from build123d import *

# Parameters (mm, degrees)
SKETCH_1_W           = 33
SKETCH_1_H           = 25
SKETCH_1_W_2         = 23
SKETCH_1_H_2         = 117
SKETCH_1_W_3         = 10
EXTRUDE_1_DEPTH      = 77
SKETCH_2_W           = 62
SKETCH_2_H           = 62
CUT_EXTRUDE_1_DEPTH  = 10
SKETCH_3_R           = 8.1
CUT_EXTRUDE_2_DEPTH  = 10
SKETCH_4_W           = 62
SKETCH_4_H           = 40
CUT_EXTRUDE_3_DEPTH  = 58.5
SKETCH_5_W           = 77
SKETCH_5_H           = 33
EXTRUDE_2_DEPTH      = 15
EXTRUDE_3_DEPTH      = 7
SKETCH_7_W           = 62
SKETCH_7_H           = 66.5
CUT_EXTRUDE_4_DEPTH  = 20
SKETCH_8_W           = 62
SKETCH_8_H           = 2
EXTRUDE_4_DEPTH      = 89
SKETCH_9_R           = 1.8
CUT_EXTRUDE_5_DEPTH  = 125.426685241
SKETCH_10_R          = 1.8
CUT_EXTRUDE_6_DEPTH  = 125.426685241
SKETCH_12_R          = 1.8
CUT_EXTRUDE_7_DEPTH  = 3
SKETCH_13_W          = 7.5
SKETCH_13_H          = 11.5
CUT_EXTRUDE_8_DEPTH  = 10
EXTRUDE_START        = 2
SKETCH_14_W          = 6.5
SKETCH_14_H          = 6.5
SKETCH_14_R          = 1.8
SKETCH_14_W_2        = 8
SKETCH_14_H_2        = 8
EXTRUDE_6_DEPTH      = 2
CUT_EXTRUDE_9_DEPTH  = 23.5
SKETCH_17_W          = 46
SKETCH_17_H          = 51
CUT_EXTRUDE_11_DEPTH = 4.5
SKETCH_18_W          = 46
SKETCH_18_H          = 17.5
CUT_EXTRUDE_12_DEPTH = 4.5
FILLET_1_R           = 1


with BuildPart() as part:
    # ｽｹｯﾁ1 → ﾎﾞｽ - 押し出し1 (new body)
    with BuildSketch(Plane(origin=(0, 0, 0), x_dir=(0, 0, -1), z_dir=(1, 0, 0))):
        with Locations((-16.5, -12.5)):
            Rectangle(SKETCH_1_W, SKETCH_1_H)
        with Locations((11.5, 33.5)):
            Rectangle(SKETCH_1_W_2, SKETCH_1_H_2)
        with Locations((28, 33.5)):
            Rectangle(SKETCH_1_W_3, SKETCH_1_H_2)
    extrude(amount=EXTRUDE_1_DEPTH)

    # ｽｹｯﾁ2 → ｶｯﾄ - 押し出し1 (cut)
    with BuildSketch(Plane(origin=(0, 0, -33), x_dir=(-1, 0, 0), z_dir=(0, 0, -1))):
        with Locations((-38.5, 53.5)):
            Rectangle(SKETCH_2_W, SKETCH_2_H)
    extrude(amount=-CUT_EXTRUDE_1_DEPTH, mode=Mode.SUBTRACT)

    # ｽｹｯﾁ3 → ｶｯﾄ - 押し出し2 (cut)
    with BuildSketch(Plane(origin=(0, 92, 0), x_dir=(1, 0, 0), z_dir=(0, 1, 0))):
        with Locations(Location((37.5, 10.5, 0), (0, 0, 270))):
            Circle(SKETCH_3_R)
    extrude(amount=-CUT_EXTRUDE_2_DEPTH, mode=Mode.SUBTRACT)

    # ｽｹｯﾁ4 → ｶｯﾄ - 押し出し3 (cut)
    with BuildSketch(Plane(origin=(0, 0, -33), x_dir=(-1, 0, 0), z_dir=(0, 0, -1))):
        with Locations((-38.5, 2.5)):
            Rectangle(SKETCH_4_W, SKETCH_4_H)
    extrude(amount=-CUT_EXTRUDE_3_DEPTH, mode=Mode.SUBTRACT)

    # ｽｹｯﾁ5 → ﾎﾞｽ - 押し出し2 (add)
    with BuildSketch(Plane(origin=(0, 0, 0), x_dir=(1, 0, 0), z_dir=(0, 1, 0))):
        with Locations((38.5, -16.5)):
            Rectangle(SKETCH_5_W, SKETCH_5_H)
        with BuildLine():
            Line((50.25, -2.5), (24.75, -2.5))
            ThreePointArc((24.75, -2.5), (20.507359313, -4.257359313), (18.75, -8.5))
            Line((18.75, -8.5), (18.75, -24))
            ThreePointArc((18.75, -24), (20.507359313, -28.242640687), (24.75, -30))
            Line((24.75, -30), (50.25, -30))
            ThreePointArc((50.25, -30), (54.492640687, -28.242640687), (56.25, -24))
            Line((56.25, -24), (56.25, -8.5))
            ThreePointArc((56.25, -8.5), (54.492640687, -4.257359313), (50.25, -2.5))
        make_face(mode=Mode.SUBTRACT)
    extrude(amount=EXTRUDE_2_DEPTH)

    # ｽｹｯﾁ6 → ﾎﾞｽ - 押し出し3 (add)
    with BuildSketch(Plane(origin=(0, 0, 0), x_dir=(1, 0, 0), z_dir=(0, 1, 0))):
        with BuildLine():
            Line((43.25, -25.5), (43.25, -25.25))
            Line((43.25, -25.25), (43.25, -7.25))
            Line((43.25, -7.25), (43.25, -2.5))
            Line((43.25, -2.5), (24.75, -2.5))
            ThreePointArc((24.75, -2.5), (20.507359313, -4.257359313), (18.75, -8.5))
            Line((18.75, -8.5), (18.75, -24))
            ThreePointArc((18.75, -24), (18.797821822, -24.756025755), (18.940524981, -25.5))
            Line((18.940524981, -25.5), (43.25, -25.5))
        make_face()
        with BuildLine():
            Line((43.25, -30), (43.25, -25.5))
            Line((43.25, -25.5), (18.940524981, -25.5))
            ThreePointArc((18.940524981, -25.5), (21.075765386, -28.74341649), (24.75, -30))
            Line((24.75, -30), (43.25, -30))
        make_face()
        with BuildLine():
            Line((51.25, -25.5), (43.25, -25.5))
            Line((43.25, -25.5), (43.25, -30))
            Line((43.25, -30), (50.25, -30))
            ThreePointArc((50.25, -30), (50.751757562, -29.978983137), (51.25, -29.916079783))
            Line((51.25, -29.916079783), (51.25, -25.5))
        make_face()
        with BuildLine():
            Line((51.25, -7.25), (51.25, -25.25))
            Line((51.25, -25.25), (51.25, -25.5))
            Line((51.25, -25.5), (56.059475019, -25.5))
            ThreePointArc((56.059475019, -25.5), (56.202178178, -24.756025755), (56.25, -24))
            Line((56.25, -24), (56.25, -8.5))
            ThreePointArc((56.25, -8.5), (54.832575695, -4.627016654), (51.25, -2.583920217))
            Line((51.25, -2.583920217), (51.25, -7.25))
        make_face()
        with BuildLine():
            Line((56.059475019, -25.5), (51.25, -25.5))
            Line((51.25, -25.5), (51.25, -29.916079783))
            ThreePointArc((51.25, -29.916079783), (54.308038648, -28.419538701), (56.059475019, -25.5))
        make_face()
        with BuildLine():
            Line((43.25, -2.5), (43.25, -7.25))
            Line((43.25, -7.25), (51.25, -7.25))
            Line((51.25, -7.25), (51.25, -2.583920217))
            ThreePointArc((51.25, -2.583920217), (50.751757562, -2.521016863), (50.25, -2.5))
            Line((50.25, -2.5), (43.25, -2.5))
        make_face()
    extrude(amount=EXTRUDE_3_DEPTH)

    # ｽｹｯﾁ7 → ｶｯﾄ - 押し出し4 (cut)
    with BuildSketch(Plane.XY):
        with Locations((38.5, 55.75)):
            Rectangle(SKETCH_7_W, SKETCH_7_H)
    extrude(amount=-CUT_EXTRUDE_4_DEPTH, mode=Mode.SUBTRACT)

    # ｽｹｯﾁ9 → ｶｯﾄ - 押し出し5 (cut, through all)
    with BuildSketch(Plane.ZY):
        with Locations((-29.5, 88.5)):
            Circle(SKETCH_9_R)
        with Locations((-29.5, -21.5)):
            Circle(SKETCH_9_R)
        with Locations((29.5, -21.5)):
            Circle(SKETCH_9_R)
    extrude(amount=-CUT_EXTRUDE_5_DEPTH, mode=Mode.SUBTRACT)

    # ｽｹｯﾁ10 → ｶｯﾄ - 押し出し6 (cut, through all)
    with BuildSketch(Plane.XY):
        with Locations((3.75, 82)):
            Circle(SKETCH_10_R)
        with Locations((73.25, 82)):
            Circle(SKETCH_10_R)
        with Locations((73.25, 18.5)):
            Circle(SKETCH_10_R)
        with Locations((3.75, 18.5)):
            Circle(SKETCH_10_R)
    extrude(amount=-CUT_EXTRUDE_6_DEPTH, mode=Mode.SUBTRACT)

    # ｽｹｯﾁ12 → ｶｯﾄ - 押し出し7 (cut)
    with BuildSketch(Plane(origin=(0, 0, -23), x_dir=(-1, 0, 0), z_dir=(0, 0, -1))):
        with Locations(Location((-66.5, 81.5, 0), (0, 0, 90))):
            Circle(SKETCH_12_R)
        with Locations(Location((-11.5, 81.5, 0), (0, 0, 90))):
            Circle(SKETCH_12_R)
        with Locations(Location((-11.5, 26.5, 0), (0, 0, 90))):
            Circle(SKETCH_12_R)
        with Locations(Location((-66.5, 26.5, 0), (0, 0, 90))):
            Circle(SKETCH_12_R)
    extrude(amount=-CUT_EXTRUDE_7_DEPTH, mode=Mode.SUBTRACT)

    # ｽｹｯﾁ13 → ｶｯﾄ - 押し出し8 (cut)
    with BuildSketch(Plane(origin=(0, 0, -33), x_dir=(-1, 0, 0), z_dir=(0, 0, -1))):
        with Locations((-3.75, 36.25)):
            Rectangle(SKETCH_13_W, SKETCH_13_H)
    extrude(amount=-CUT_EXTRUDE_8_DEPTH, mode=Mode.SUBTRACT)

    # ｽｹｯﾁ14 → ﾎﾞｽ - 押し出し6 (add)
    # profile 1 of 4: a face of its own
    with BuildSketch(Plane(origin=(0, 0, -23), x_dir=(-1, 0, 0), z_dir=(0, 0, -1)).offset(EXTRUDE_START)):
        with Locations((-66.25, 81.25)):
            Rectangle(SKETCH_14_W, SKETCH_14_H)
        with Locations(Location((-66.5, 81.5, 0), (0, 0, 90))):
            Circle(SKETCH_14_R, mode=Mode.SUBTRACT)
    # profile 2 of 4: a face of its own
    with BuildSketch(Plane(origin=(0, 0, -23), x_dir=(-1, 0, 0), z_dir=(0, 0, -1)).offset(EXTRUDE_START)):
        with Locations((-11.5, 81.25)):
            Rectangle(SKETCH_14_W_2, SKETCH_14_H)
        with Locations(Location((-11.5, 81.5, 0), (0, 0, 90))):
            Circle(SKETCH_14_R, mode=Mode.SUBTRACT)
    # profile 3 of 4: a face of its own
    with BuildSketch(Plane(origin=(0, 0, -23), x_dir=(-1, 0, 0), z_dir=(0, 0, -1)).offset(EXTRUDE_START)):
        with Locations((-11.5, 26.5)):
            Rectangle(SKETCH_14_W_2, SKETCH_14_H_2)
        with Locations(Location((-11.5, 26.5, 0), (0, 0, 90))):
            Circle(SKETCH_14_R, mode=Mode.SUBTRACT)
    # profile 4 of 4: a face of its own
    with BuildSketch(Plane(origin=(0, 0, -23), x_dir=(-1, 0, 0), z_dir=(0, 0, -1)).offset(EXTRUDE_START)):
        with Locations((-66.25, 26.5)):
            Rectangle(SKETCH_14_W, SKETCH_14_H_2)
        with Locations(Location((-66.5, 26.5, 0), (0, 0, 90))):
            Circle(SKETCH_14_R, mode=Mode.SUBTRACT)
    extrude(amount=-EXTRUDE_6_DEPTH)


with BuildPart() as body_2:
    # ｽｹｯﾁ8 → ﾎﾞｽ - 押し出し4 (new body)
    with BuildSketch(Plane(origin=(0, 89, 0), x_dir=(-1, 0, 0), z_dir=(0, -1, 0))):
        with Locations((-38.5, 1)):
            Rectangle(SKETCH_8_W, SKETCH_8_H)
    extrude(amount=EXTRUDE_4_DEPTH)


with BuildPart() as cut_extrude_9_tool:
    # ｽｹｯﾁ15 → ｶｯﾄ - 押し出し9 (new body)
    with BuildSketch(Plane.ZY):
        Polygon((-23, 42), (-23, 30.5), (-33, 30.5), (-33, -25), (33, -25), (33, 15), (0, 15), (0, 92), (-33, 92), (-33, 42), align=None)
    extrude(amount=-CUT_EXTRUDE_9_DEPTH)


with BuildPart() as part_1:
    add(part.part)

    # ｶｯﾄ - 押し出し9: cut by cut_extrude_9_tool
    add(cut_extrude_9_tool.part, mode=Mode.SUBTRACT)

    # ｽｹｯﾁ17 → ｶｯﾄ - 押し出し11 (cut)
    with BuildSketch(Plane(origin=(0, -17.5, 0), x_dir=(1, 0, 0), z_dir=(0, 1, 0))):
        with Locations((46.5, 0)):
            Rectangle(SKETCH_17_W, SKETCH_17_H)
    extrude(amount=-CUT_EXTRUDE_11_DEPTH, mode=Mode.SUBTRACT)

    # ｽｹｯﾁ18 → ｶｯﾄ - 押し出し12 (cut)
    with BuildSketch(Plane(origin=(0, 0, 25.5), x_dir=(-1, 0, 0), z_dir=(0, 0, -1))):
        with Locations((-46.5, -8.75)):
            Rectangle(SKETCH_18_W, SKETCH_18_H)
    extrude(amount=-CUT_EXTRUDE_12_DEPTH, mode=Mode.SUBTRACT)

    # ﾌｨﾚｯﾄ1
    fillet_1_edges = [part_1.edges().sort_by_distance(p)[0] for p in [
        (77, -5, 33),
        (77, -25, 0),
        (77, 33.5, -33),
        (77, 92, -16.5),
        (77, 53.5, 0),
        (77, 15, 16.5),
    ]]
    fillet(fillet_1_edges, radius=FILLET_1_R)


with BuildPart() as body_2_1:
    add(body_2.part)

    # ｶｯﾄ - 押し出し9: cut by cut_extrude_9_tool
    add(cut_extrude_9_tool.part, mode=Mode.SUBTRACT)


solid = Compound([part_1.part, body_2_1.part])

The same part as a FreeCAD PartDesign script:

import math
import FreeCAD as App
import Part
import Sketcher

V = App.Vector
Q = App.Units.Quantity


def edges_at(feature, points):
    """Names of the edges that pass closest to the given points."""
    edges = feature.Shape.Edges
    near = lambda p: min(range(len(edges)), key=lambda i: edges[i].distToShape(Part.Vertex(*p))[0])
    return sorted({f"Edge{near(p) + 1}" for p in points})

doc = App.newDocument("Part")
body = doc.addObject("PartDesign::Body", "Body")

# Sketch on YZ plane
sketch1 = body.newObject("Sketcher::SketchObject", "Sketch")
sketch1.AttachmentSupport = (doc.getObject("YZ_Plane"), [""])
sketch1.MapMode = "FlatFace"
sketch1.addGeometry(Part.LineSegment(V(0, 33, 0), V(-25, 33, 0)), False)
sketch1.addGeometry(Part.LineSegment(V(-25, 33, 0), V(-25, -33, 0)), False)
sketch1.addGeometry(Part.LineSegment(V(-25, -33, 0), V(92, -33, 0)), False)
sketch1.addGeometry(Part.LineSegment(V(92, -33, 0), V(92, 0, 0)), False)
sketch1.addGeometry(Part.LineSegment(V(92, 0, 0), V(0, 0, 0)), False)
sketch1.addGeometry(Part.LineSegment(V(0, 0, 0), V(0, 33, 0)), False)
sketch1.addConstraint(Sketcher.Constraint("Coincident", 0, 2, 1, 1))
sketch1.addConstraint(Sketcher.Constraint("Coincident", 1, 2, 2, 1))
sketch1.addConstraint(Sketcher.Constraint("Coincident", 2, 2, 3, 1))
sketch1.addConstraint(Sketcher.Constraint("Coincident", 3, 2, 4, 1))
sketch1.addConstraint(Sketcher.Constraint("Coincident", 4, 2, 5, 1))
sketch1.addConstraint(Sketcher.Constraint("Coincident", 5, 2, 0, 1))
sketch1.addConstraint(Sketcher.Constraint("Horizontal", 0))
sketch1.addConstraint(Sketcher.Constraint("Vertical", 1))
sketch1.addConstraint(Sketcher.Constraint("Horizontal", 2))
sketch1.addConstraint(Sketcher.Constraint("Vertical", 3))
sketch1.addConstraint(Sketcher.Constraint("Horizontal", 4))
sketch1.addConstraint(Sketcher.Constraint("Vertical", 5))
sketch1.addConstraint(Sketcher.Constraint("Coincident", 4, 2, -1, 1))
sketch1.addConstraint(Sketcher.Constraint("Equal", 3, 5))
sketch1.addConstraint(Sketcher.Constraint("DistanceX", 0, 2, 0, 1, Q("25 mm")))
sketch1.addConstraint(Sketcher.Constraint("DistanceX", 2, 1, 2, 2, Q("117 mm")))
sketch1.addConstraint(Sketcher.Constraint("DistanceY", 1, 2, 1, 1, Q("66 mm")))
pad1 = body.newObject("PartDesign::Pad", "Pad")
pad1.Profile = sketch1
pad1.Length = 77

# Sketch on XY plane
sketch2 = body.newObject("Sketcher::SketchObject", "Sketch001")
sketch2.AttachmentSupport = (doc.getObject("XY_Plane"), [""])
sketch2.MapMode = "FlatFace"
sketch2.AttachmentOffset = App.Placement(V(0, 0, -33), App.Rotation())
sketch2.addGeometry(Part.LineSegment(V(69.5, 84.5, 0), V(69.5, 22.5, 0)), False)
sketch2.addGeometry(Part.LineSegment(V(69.5, 22.5, 0), V(7.5, 22.5, 0)), False)
sketch2.addGeometry(Part.LineSegment(V(7.5, 22.5, 0), V(7.5, 84.5, 0)), False)
sketch2.addGeometry(Part.LineSegment(V(7.5, 84.5, 0), V(69.5, 84.5, 0)), False)
sketch2.addConstraint(Sketcher.Constraint("Coincident", 0, 2, 1, 1))
sketch2.addConstraint(Sketcher.Constraint("Coincident", 1, 2, 2, 1))
sketch2.addConstraint(Sketcher.Constraint("Coincident", 2, 2, 3, 1))
sketch2.addConstraint(Sketcher.Constraint("Coincident", 3, 2, 0, 1))
sketch2.addConstraint(Sketcher.Constraint("Vertical", 0))
sketch2.addConstraint(Sketcher.Constraint("Horizontal", 1))
sketch2.addConstraint(Sketcher.Constraint("Vertical", 2))
sketch2.addConstraint(Sketcher.Constraint("Horizontal", 3))
sketch2.addConstraint(Sketcher.Constraint("Equal", 3, 0))
sketch2.addConstraint(Sketcher.Constraint("DistanceX", 1, 2, 1, 1, Q("62 mm")))
sketch2.addConstraint(Sketcher.Constraint("DistanceX", -1, 1, 0, 2, Q("69.5 mm")))
sketch2.addConstraint(Sketcher.Constraint("DistanceY", -1, 1, 0, 2, Q("22.5 mm")))
pocket1 = body.newObject("PartDesign::Pocket", "Pocket")
pocket1.Profile = sketch2
pocket1.Length = 10
pocket1.Reversed = True

# Sketch on XZ plane
sketch3 = body.newObject("Sketcher::SketchObject", "Sketch002")
sketch3.AttachmentSupport = (doc.getObject("XZ_Plane"), [""])
sketch3.MapMode = "FlatFace"
sketch3.AttachmentOffset = App.Placement(V(0, 0, -92), App.Rotation())
sketch3.addGeometry(Part.Circle(V(37.5, -10.5, 0), V(0, 0, 1), 8.1), False)
sketch3.addConstraint(Sketcher.Constraint("Diameter", 0, Q("16.2 mm")))
sketch3.addConstraint(Sketcher.Constraint("DistanceX", -1, 1, 0, 3, Q("37.5 mm")))
sketch3.addConstraint(Sketcher.Constraint("DistanceY", 0, 3, -1, 1, Q("10.5 mm")))
pocket2 = body.newObject("PartDesign::Pocket", "Pocket001")
pocket2.Profile = sketch3
pocket2.Length = 10
pocket2.Reversed = True

# Sketch on XY plane
sketch4 = body.newObject("Sketcher::SketchObject", "Sketch003")
sketch4.AttachmentSupport = (doc.getObject("XY_Plane"), [""])
sketch4.MapMode = "FlatFace"
sketch4.AttachmentOffset = App.Placement(V(0, 0, -33), App.Rotation())
sketch4.addGeometry(Part.LineSegment(V(69.5, 22.5, 0), V(69.5, -17.5, 0)), False)
sketch4.addGeometry(Part.LineSegment(V(69.5, -17.5, 0), V(7.5, -17.5, 0)), False)
sketch4.addGeometry(Part.LineSegment(V(7.5, -17.5, 0), V(7.5, 22.5, 0)), False)
sketch4.addGeometry(Part.LineSegment(V(7.5, 22.5, 0), V(69.5, 22.5, 0)), False)
sketch4.addConstraint(Sketcher.Constraint("Coincident", 0, 2, 1, 1))
sketch4.addConstraint(Sketcher.Constraint("Coincident", 1, 2, 2, 1))
sketch4.addConstraint(Sketcher.Constraint("Coincident", 2, 2, 3, 1))
sketch4.addConstraint(Sketcher.Constraint("Coincident", 3, 2, 0, 1))
sketch4.addConstraint(Sketcher.Constraint("Vertical", 0))
sketch4.addConstraint(Sketcher.Constraint("Horizontal", 1))
sketch4.addConstraint(Sketcher.Constraint("Vertical", 2))
sketch4.addConstraint(Sketcher.Constraint("Horizontal", 3))
sketch4.addConstraint(Sketcher.Constraint("DistanceX", 1, 2, 1, 1, Q("62 mm")))
sketch4.addConstraint(Sketcher.Constraint("DistanceY", 0, 2, 0, 1, Q("40 mm")))
sketch4.addConstraint(Sketcher.Constraint("DistanceX", -1, 1, 0, 2, Q("69.5 mm")))
sketch4.addConstraint(Sketcher.Constraint("DistanceY", 0, 2, -1, 1, Q("17.5 mm")))
pocket3 = body.newObject("PartDesign::Pocket", "Pocket002")
pocket3.Profile = sketch4
pocket3.Length = 58.5
pocket3.Reversed = True

# Sketch on XZ plane
sketch5 = body.newObject("Sketcher::SketchObject", "Sketch004")
sketch5.AttachmentSupport = (doc.getObject("XZ_Plane"), [""])
sketch5.MapMode = "FlatFace"
sketch5.addGeometry(Part.LineSegment(V(0, 0, 0), V(0, 33, 0)), False)
sketch5.addGeometry(Part.LineSegment(V(0, 33, 0), V(77, 33, 0)), False)
sketch5.addGeometry(Part.LineSegment(V(77, 33, 0), V(77, 0, 0)), False)
sketch5.addGeometry(Part.LineSegment(V(77, 0, 0), V(0, 0, 0)), False)
sketch5.addGeometry(Part.LineSegment(V(24.75, 2.5, 0), V(50.25, 2.5, 0)), False)
sketch5.addGeometry(Part.ArcOfCircle(Part.Circle(V(50.25, 8.5, 0), V(0, 0, 1), 6), math.radians(-90), math.radians(0)), False)
sketch5.addGeometry(Part.LineSegment(V(56.25, 8.5, 0), V(56.25, 24, 0)), False)
sketch5.addGeometry(Part.ArcOfCircle(Part.Circle(V(50.25, 24, 0), V(0, 0, 1), 6), math.radians(0), math.radians(90)), False)
sketch5.addGeometry(Part.LineSegment(V(50.25, 30, 0), V(24.75, 30, 0)), False)
sketch5.addGeometry(Part.ArcOfCircle(Part.Circle(V(24.75, 24, 0), V(0, 0, 1), 6), math.radians(90), math.radians(180)), False)
sketch5.addGeometry(Part.LineSegment(V(18.75, 24, 0), V(18.75, 8.5, 0)), False)
sketch5.addGeometry(Part.ArcOfCircle(Part.Circle(V(24.75, 8.5, 0), V(0, 0, 1), 6), math.radians(180), math.radians(270)), False)
sketch5.addConstraint(Sketcher.Constraint("Coincident", 0, 2, 1, 1))
sketch5.addConstraint(Sketcher.Constraint("Coincident", 1, 2, 2, 1))
sketch5.addConstraint(Sketcher.Constraint("Coincident", 2, 2, 3, 1))
sketch5.addConstraint(Sketcher.Constraint("Coincident", 3, 2, 0, 1))
sketch5.addConstraint(Sketcher.Constraint("Tangent", 4, 2, 5, 1))
sketch5.addConstraint(Sketcher.Constraint("Tangent", 5, 2, 6, 1))
sketch5.addConstraint(Sketcher.Constraint("Tangent", 6, 2, 7, 1))
sketch5.addConstraint(Sketcher.Constraint("Tangent", 7, 2, 8, 1))
sketch5.addConstraint(Sketcher.Constraint("Tangent", 8, 2, 9, 1))
sketch5.addConstraint(Sketcher.Constraint("Tangent", 9, 2, 10, 1))
sketch5.addConstraint(Sketcher.Constraint("Tangent", 10, 2, 11, 1))
sketch5.addConstraint(Sketcher.Constraint("Tangent", 11, 2, 4, 1))
sketch5.addConstraint(Sketcher.Constraint("Vertical", 0))
sketch5.addConstraint(Sketcher.Constraint("Horizontal", 1))
sketch5.addConstraint(Sketcher.Constraint("Vertical", 2))
sketch5.addConstraint(Sketcher.Constraint("Horizontal", 3))
sketch5.addConstraint(Sketcher.Constraint("Horizontal", 4))
sketch5.addConstraint(Sketcher.Constraint("Vertical", 6))
sketch5.addConstraint(Sketcher.Constraint("Horizontal", 8))
sketch5.addConstraint(Sketcher.Constraint("Vertical", 10))
sketch5.addConstraint(Sketcher.Constraint("Coincident", 3, 2, -1, 1))
sketch5.addConstraint(Sketcher.Constraint("Equal", 5, 7))
sketch5.addConstraint(Sketcher.Constraint("Equal", 7, 9))
sketch5.addConstraint(Sketcher.Constraint("Equal", 9, 11))
sketch5.addConstraint(Sketcher.Constraint("Radius", 5, Q("6 mm")))
sketch5.addConstraint(Sketcher.Constraint("DistanceX", 1, 1, 1, 2, Q("77 mm")))
sketch5.addConstraint(Sketcher.Constraint("DistanceY", 0, 1, 0, 2, Q("33 mm")))
sketch5.addConstraint(Sketcher.Constraint("DistanceX", 4, 1, 4, 2, Q("25.5 mm")))
sketch5.addConstraint(Sketcher.Constraint("DistanceY", 6, 1, 6, 2, Q("15.5 mm")))
sketch5.addConstraint(Sketcher.Constraint("DistanceY", -1, 1, 7, 3, Q("24 mm")))
sketch5.addConstraint(Sketcher.Constraint("DistanceX", -1, 1, 5, 3, Q("50.25 mm")))
pad2 = body.newObject("PartDesign::Pad", "Pad001")
pad2.Profile = sketch5
pad2.Length = 15
pad2.Reversed = True

# Sketch on XZ plane
sketch6 = body.newObject("Sketcher::SketchObject", "Sketch005")
sketch6.AttachmentSupport = (doc.getObject("XZ_Plane"), [""])
sketch6.MapMode = "FlatFace"
sketch6.addGeometry(Part.ArcOfCircle(Part.Circle(V(24.75, 8.5, 0), V(0, 0, 1), 6), math.radians(180), math.radians(270)), False)
sketch6.addGeometry(Part.LineSegment(V(18.75, 8.5, 0), V(18.75, 24, 0)), False)
sketch6.addGeometry(Part.ArcOfCircle(Part.Circle(V(24.75, 24, 0), V(0, 0, 1), 6), math.radians(165.522488), math.radians(180)), False)
sketch6.addGeometry(Part.ArcOfCircle(Part.Circle(V(24.75, 24, 0), V(0, 0, 1), 6), math.radians(90), math.radians(165.522488)), False)
sketch6.addGeometry(Part.LineSegment(V(24.75, 30, 0), V(50.25, 30, 0)), False)
sketch6.addGeometry(Part.ArcOfCircle(Part.Circle(V(50.25, 24, 0), V(0, 0, 1), 6), math.radians(80.405932), math.radians(90)), False)
sketch6.addGeometry(Part.ArcOfCircle(Part.Circle(V(50.25, 24, 0), V(0, 0, 1), 6), math.radians(14.477512), math.radians(80.405932)), False)
sketch6.addGeometry(Part.ArcOfCircle(Part.Circle(V(50.25, 24, 0), V(0, 0, 1), 6), math.radians(0), math.radians(14.477512)), False)
sketch6.addGeometry(Part.LineSegment(V(56.25, 24, 0), V(56.25, 8.5, 0)), False)
sketch6.addGeometry(Part.ArcOfCircle(Part.Circle(V(50.25, 8.5, 0), V(0, 0, 1), 6), math.radians(-80.405932), math.radians(0)), False)
sketch6.addGeometry(Part.ArcOfCircle(Part.Circle(V(50.25, 8.5, 0), V(0, 0, 1), 6), math.radians(-90), math.radians(-80.405932)), False)
sketch6.addGeometry(Part.LineSegment(V(50.25, 2.5, 0), V(24.75, 2.5, 0)), False)
sketch6.addGeometry(Part.LineSegment(V(51.25, 7.25, 0), V(51.25, 25.5, 0)), False)
sketch6.addGeometry(Part.LineSegment(V(51.25, 25.5, 0), V(43.25, 25.5, 0)), False)
sketch6.addGeometry(Part.LineSegment(V(43.25, 25.5, 0), V(43.25, 7.25, 0)), False)
sketch6.addGeometry(Part.LineSegment(V(43.25, 7.25, 0), V(51.25, 7.25, 0)), False)
sketch6.addConstraint(Sketcher.Constraint("Tangent", 0, 1, 1, 1))
sketch6.addConstraint(Sketcher.Constraint("Tangent", 1, 2, 2, 2))
sketch6.addConstraint(Sketcher.Constraint("Tangent", 2, 1, 3, 2))
sketch6.addConstraint(Sketcher.Constraint("Tangent", 3, 1, 4, 1))
sketch6.addConstraint(Sketcher.Constraint("Tangent", 4, 2, 5, 2))
sketch6.addConstraint(Sketcher.Constraint("Tangent", 5, 1, 6, 2))
sketch6.addConstraint(Sketcher.Constraint("Tangent", 6, 1, 7, 2))
sketch6.addConstraint(Sketcher.Constraint("Tangent", 7, 1, 8, 1))
sketch6.addConstraint(Sketcher.Constraint("Tangent", 8, 2, 9, 2))
sketch6.addConstraint(Sketcher.Constraint("Tangent", 9, 1, 10, 2))
sketch6.addConstraint(Sketcher.Constraint("Tangent", 10, 1, 11, 1))
sketch6.addConstraint(Sketcher.Constraint("Tangent", 11, 2, 0, 2))
sketch6.addConstraint(Sketcher.Constraint("Coincident", 12, 2, 13, 1))
sketch6.addConstraint(Sketcher.Constraint("Coincident", 13, 2, 14, 1))
sketch6.addConstraint(Sketcher.Constraint("Coincident", 14, 2, 15, 1))
sketch6.addConstraint(Sketcher.Constraint("Coincident", 15, 2, 12, 1))
sketch6.addConstraint(Sketcher.Constraint("Vertical", 1))
sketch6.addConstraint(Sketcher.Constraint("Horizontal", 4))
sketch6.addConstraint(Sketcher.Constraint("Vertical", 8))
sketch6.addConstraint(Sketcher.Constraint("Horizontal", 11))
sketch6.addConstraint(Sketcher.Constraint("Vertical", 12))
sketch6.addConstraint(Sketcher.Constraint("Horizontal", 13))
sketch6.addConstraint(Sketcher.Constraint("Vertical", 14))
sketch6.addConstraint(Sketcher.Constraint("Horizontal", 15))
sketch6.addConstraint(Sketcher.Constraint("Coincident", 7, 3, 5, 3))
sketch6.addConstraint(Sketcher.Constraint("Equal", 0, 2))
sketch6.addConstraint(Sketcher.Constraint("Equal", 2, 3))
sketch6.addConstraint(Sketcher.Constraint("Equal", 3, 5))
sketch6.addConstraint(Sketcher.Constraint("Equal", 7, 9))
sketch6.addConstraint(Sketcher.Constraint("Equal", 9, 10))
sketch6.addConstraint(Sketcher.Constraint("Horizontal", 2, 1, 6, 1))
sketch6.addConstraint(Sketcher.Constraint("Horizontal", 6, 1, 12, 2))
sketch6.addConstraint(Sketcher.Constraint("Vertical", 5, 1, 9, 1))
sketch6.addConstraint(Sketcher.Constraint("Vertical", 9, 1, 12, 2))
sketch6.addConstraint(Sketcher.Constraint("Radius", 0, Q("6 mm")))
sketch6.addConstraint(Sketcher.Constraint("DistanceX", 13, 2, 13, 1, Q("8 mm")))
sketch6.addConstraint(Sketcher.Constraint("DistanceX", 4, 1, 4, 2, Q("25.5 mm")))
sketch6.addConstraint(Sketcher.Constraint("DistanceY", 1, 1, 1, 2, Q("15.5 mm")))
sketch6.addConstraint(Sketcher.Constraint("DistanceY", -1, 1, 2, 3, Q("24 mm")))
sketch6.addConstraint(Sketcher.Constraint("DistanceY", 0, 1, 2, 1, Q("17 mm")))
sketch6.addConstraint(Sketcher.Constraint("DistanceX", 4, 2, 5, 1, Q("1 mm")))
sketch6.addConstraint(Sketcher.Constraint("DistanceY", 12, 1, 12, 2, Q("18.25 mm")))
sketch6.addConstraint(Sketcher.Constraint("DistanceX", -1, 1, 0, 3, Q("24.75 mm")))
pad3 = body.newObject("PartDesign::Pad", "Pad002")
pad3.Profile = sketch6
pad3.Length = 7
pad3.Reversed = True

# Sketch on XY plane
sketch7 = body.newObject("Sketcher::SketchObject", "Sketch006")
sketch7.AttachmentSupport = (doc.getObject("XY_Plane"), [""])
sketch7.MapMode = "FlatFace"
sketch7.addGeometry(Part.LineSegment(V(7.5, 89, 0), V(7.5, 22.5, 0)), False)
sketch7.addGeometry(Part.LineSegment(V(7.5, 22.5, 0), V(69.5, 22.5, 0)), False)
sketch7.addGeometry(Part.LineSegment(V(69.5, 22.5, 0), V(69.5, 89, 0)), False)
sketch7.addGeometry(Part.LineSegment(V(69.5, 89, 0), V(7.5, 89, 0)), False)
sketch7.addConstraint(Sketcher.Constraint("Coincident", 0, 2, 1, 1))
sketch7.addConstraint(Sketcher.Constraint("Coincident", 1, 2, 2, 1))
sketch7.addConstraint(Sketcher.Constraint("Coincident", 2, 2, 3, 1))
sketch7.addConstraint(Sketcher.Constraint("Coincident", 3, 2, 0, 1))
sketch7.addConstraint(Sketcher.Constraint("Vertical", 0))
sketch7.addConstraint(Sketcher.Constraint("Horizontal", 1))
sketch7.addConstraint(Sketcher.Constraint("Vertical", 2))
sketch7.addConstraint(Sketcher.Constraint("Horizontal", 3))
sketch7.addConstraint(Sketcher.Constraint("DistanceX", 1, 1, 1, 2, Q("62 mm")))
sketch7.addConstraint(Sketcher.Constraint("DistanceY", 0, 2, 0, 1, Q("66.5 mm")))
sketch7.addConstraint(Sketcher.Constraint("DistanceY", -1, 1, 2, 2, Q("89 mm")))
sketch7.addConstraint(Sketcher.Constraint("DistanceX", -1, 1, 0, 2, Q("7.5 mm")))
pocket4 = body.newObject("PartDesign::Pocket", "Pocket003")
pocket4.Profile = sketch7
pocket4.Length = 20

# Sketch on YZ plane
sketch8 = body.newObject("Sketcher::SketchObject", "Sketch007")
sketch8.AttachmentSupport = (doc.getObject("YZ_Plane"), [""])
sketch8.MapMode = "FlatFace"
sketch8.addGeometry(Part.Circle(V(88.5, -29.5, 0), V(0, 0, 1), 1.8), False)
sketch8.addGeometry(Part.Circle(V(-21.5, -29.5, 0), V(0, 0, 1), 1.8), False)
sketch8.addGeometry(Part.Circle(V(-21.5, 29.5, 0), V(0, 0, 1), 1.8), False)
sketch8.addConstraint(Sketcher.Constraint("Equal", 0, 1))
sketch8.addConstraint(Sketcher.Constraint("Equal", 1, 2))
sketch8.addConstraint(Sketcher.Constraint("Symmetric", 1, 3, 2, 3, -1))
sketch8.addConstraint(Sketcher.Constraint("Horizontal", 0, 3, 1, 3))
sketch8.addConstraint(Sketcher.Constraint("Diameter", 0, Q("3.6 mm")))
sketch8.addConstraint(Sketcher.Constraint("DistanceX", 1, 3, 0, 3, Q("110 mm")))
sketch8.addConstraint(Sketcher.Constraint("DistanceY", 1, 3, 2, 3, Q("59 mm")))
sketch8.addConstraint(Sketcher.Constraint("DistanceX", -1, 1, 0, 3, Q("88.5 mm")))
pocket5 = body.newObject("PartDesign::Pocket", "Pocket004")
pocket5.Profile = sketch8
pocket5.Type = "ThroughAll"
pocket5.Reversed = True

# Sketch on XY plane
sketch9 = body.newObject("Sketcher::SketchObject", "Sketch008")
sketch9.AttachmentSupport = (doc.getObject("XY_Plane"), [""])
sketch9.MapMode = "FlatFace"
sketch9.addGeometry(Part.Circle(V(3.75, 82, 0), V(0, 0, 1), 1.8), False)
sketch9.addGeometry(Part.Circle(V(73.25, 82, 0), V(0, 0, 1), 1.8), False)
sketch9.addGeometry(Part.Circle(V(73.25, 18.5, 0), V(0, 0, 1), 1.8), False)
sketch9.addGeometry(Part.Circle(V(3.75, 18.5, 0), V(0, 0, 1), 1.8), False)
sketch9.addConstraint(Sketcher.Constraint("Equal", 0, 1))
sketch9.addConstraint(Sketcher.Constraint("Equal", 1, 2))
sketch9.addConstraint(Sketcher.Constraint("Equal", 2, 3))
sketch9.addConstraint(Sketcher.Constraint("Horizontal", 0, 3, 1, 3))
sketch9.addConstraint(Sketcher.Constraint("Horizontal", 2, 3, 3, 3))
sketch9.addConstraint(Sketcher.Constraint("Vertical", 1, 3, 2, 3))
sketch9.addConstraint(Sketcher.Constraint("Vertical", 0, 3, 3, 3))
sketch9.addConstraint(Sketcher.Constraint("Diameter", 0, Q("3.6 mm")))
sketch9.addConstraint(Sketcher.Constraint("DistanceY", -1, 1, 0, 3, Q("82 mm")))
sketch9.addConstraint(Sketcher.Constraint("DistanceY", -1, 1, 2, 3, Q("18.5 mm")))
sketch9.addConstraint(Sketcher.Constraint("DistanceX", 0, 3, 1, 3, Q("69.5 mm")))
sketch9.addConstraint(Sketcher.Constraint("DistanceX", -1, 1, 0, 3, Q("3.75 mm")))
pocket6 = body.newObject("PartDesign::Pocket", "Pocket005")
pocket6.Profile = sketch9
pocket6.Type = "ThroughAll"

# Sketch on XY plane
sketch10 = body.newObject("Sketcher::SketchObject", "Sketch009")
sketch10.AttachmentSupport = (doc.getObject("XY_Plane"), [""])
sketch10.MapMode = "FlatFace"
sketch10.AttachmentOffset = App.Placement(V(0, 0, -23), App.Rotation())
sketch10.addGeometry(Part.Circle(V(66.5, 81.5, 0), V(0, 0, 1), 1.8), False)
sketch10.addGeometry(Part.Circle(V(11.5, 81.5, 0), V(0, 0, 1), 1.8), False)
sketch10.addGeometry(Part.Circle(V(11.5, 26.5, 0), V(0, 0, 1), 1.8), False)
sketch10.addGeometry(Part.Circle(V(66.5, 26.5, 0), V(0, 0, 1), 1.8), False)
sketch10.addConstraint(Sketcher.Constraint("Equal", 0, 1))
sketch10.addConstraint(Sketcher.Constraint("Equal", 1, 2))
sketch10.addConstraint(Sketcher.Constraint("Equal", 2, 3))
sketch10.addConstraint(Sketcher.Constraint("Horizontal", 0, 3, 1, 3))
sketch10.addConstraint(Sketcher.Constraint("Horizontal", 2, 3, 3, 3))
sketch10.addConstraint(Sketcher.Constraint("Vertical", 1, 3, 2, 3))
sketch10.addConstraint(Sketcher.Constraint("Vertical", 0, 3, 3, 3))
sketch10.addConstraint(Sketcher.Constraint("Diameter", 0, Q("3.6 mm")))
sketch10.addConstraint(Sketcher.Constraint("DistanceX", 1, 3, 0, 3, Q("55 mm")))
sketch10.addConstraint(Sketcher.Constraint("DistanceY", 2, 3, 1, 3, Q("55 mm")))
sketch10.addConstraint(Sketcher.Constraint("DistanceX", -1, 1, 0, 3, Q("66.5 mm")))
sketch10.addConstraint(Sketcher.Constraint("DistanceY", -1, 1, 0, 3, Q("81.5 mm")))
pocket7 = body.newObject("PartDesign::Pocket", "Pocket006")
pocket7.Profile = sketch10
pocket7.Length = 3
pocket7.Reversed = True

# Sketch on XY plane
sketch11 = body.newObject("Sketcher::SketchObject", "Sketch010")
sketch11.AttachmentSupport = (doc.getObject("XY_Plane"), [""])
sketch11.MapMode = "FlatFace"
sketch11.AttachmentOffset = App.Placement(V(0, 0, -33), App.Rotation())
sketch11.addGeometry(Part.LineSegment(V(7.5, 42, 0), V(7.5, 30.5, 0)), False)
sketch11.addGeometry(Part.LineSegment(V(7.5, 30.5, 0), V(0, 30.5, 0)), False)
sketch11.addGeometry(Part.LineSegment(V(0, 30.5, 0), V(0, 42, 0)), False)
sketch11.addGeometry(Part.LineSegment(V(0, 42, 0), V(7.5, 42, 0)), False)
sketch11.addConstraint(Sketcher.Constraint("Coincident", 0, 2, 1, 1))
sketch11.addConstraint(Sketcher.Constraint("Coincident", 1, 2, 2, 1))
sketch11.addConstraint(Sketcher.Constraint("Coincident", 2, 2, 3, 1))
sketch11.addConstraint(Sketcher.Constraint("Coincident", 3, 2, 0, 1))
sketch11.addConstraint(Sketcher.Constraint("Vertical", 0))
sketch11.addConstraint(Sketcher.Constraint("Horizontal", 1))
sketch11.addConstraint(Sketcher.Constraint("Vertical", 2))
sketch11.addConstraint(Sketcher.Constraint("Horizontal", 3))
sketch11.addConstraint(Sketcher.Constraint("PointOnObject", 1, 2, -2))
sketch11.addConstraint(Sketcher.Constraint("DistanceX", 1, 2, 1, 1, Q("7.5 mm")))
sketch11.addConstraint(Sketcher.Constraint("DistanceY", 0, 2, 0, 1, Q("11.5 mm")))
sketch11.addConstraint(Sketcher.Constraint("DistanceY", -1, 1, 2, 2, Q("42 mm")))
pocket8 = body.newObject("PartDesign::Pocket", "Pocket007")
pocket8.Profile = sketch11
pocket8.Length = 10
pocket8.Reversed = True

# Sketch on XY plane
sketch12 = body.newObject("Sketcher::SketchObject", "Sketch011")
sketch12.AttachmentSupport = (doc.getObject("XY_Plane"), [""])
sketch12.MapMode = "FlatFace"
sketch12.AttachmentOffset = App.Placement(V(0, 0, -25), App.Rotation())
sketch12.addGeometry(Part.LineSegment(V(69.5, 84.5, 0), V(69.5, 78, 0)), False)
sketch12.addGeometry(Part.LineSegment(V(69.5, 78, 0), V(63, 78, 0)), False)
sketch12.addGeometry(Part.LineSegment(V(63, 78, 0), V(63, 84.5, 0)), False)
sketch12.addGeometry(Part.LineSegment(V(63, 84.5, 0), V(69.5, 84.5, 0)), False)
sketch12.addGeometry(Part.Circle(V(66.5, 81.5, 0), V(0, 0, 1), 1.8), False)
sketch12.addGeometry(Part.LineSegment(V(15.5, 84.5, 0), V(15.5, 78, 0)), False)
sketch12.addGeometry(Part.LineSegment(V(15.5, 78, 0), V(7.5, 78, 0)), False)
sketch12.addGeometry(Part.LineSegment(V(7.5, 78, 0), V(7.5, 84.5, 0)), False)
sketch12.addGeometry(Part.LineSegment(V(7.5, 84.5, 0), V(15.5, 84.5, 0)), False)
sketch12.addGeometry(Part.Circle(V(11.5, 81.5, 0), V(0, 0, 1), 1.8), False)
sketch12.addGeometry(Part.LineSegment(V(15.5, 30.5, 0), V(15.5, 22.5, 0)), False)
sketch12.addGeometry(Part.LineSegment(V(15.5, 22.5, 0), V(7.5, 22.5, 0)), False)
sketch12.addGeometry(Part.LineSegment(V(7.5, 22.5, 0), V(7.5, 30.5, 0)), False)
sketch12.addGeometry(Part.LineSegment(V(7.5, 30.5, 0), V(15.5, 30.5, 0)), False)
sketch12.addGeometry(Part.Circle(V(11.5, 26.5, 0), V(0, 0, 1), 1.8), False)
sketch12.addGeometry(Part.LineSegment(V(69.5, 30.5, 0), V(69.5, 22.5, 0)), False)
sketch12.addGeometry(Part.LineSegment(V(69.5, 22.5, 0), V(63, 22.5, 0)), False)
sketch12.addGeometry(Part.LineSegment(V(63, 22.5, 0), V(63, 30.5, 0)), False)
sketch12.addGeometry(Part.LineSegment(V(63, 30.5, 0), V(69.5, 30.5, 0)), False)
sketch12.addGeometry(Part.Circle(V(66.5, 26.5, 0), V(0, 0, 1), 1.8), False)
sketch12.addConstraint(Sketcher.Constraint("Coincident", 0, 2, 1, 1))
sketch12.addConstraint(Sketcher.Constraint("Coincident", 1, 2, 2, 1))
sketch12.addConstraint(Sketcher.Constraint("Coincident", 2, 2, 3, 1))
sketch12.addConstraint(Sketcher.Constraint("Coincident", 3, 2, 0, 1))
sketch12.addConstraint(Sketcher.Constraint("Coincident", 5, 2, 6, 1))
sketch12.addConstraint(Sketcher.Constraint("Coincident", 6, 2, 7, 1))
sketch12.addConstraint(Sketcher.Constraint("Coincident", 7, 2, 8, 1))
sketch12.addConstraint(Sketcher.Constraint("Coincident", 8, 2, 5, 1))
sketch12.addConstraint(Sketcher.Constraint("Coincident", 10, 2, 11, 1))
sketch12.addConstraint(Sketcher.Constraint("Coincident", 11, 2, 12, 1))
sketch12.addConstraint(Sketcher.Constraint("Coincident", 12, 2, 13, 1))
sketch12.addConstraint(Sketcher.Constraint("Coincident", 13, 2, 10, 1))
sketch12.addConstraint(Sketcher.Constraint("Coincident", 15, 2, 16, 1))
sketch12.addConstraint(Sketcher.Constraint("Coincident", 16, 2, 17, 1))
sketch12.addConstraint(Sketcher.Constraint("Coincident", 17, 2, 18, 1))
sketch12.addConstraint(Sketcher.Constraint("Coincident", 18, 2, 15, 1))
sketch12.addConstraint(Sketcher.Constraint("Vertical", 0))
sketch12.addConstraint(Sketcher.Constraint("Horizontal", 1))
sketch12.addConstraint(Sketcher.Constraint("Vertical", 2))
sketch12.addConstraint(Sketcher.Constraint("Horizontal", 3))
sketch12.addConstraint(Sketcher.Constraint("Vertical", 5))
sketch12.addConstraint(Sketcher.Constraint("Horizontal", 6))
sketch12.addConstraint(Sketcher.Constraint("Vertical", 7))
sketch12.addConstraint(Sketcher.Constraint("Horizontal", 8))
sketch12.addConstraint(Sketcher.Constraint("Vertical", 10))
sketch12.addConstraint(Sketcher.Constraint("Horizontal", 11))
sketch12.addConstraint(Sketcher.Constraint("Vertical", 12))
sketch12.addConstraint(Sketcher.Constraint("Horizontal", 13))
sketch12.addConstraint(Sketcher.Constraint("Vertical", 15))
sketch12.addConstraint(Sketcher.Constraint("Horizontal", 16))
sketch12.addConstraint(Sketcher.Constraint("Vertical", 17))
sketch12.addConstraint(Sketcher.Constraint("Horizontal", 18))
sketch12.addConstraint(Sketcher.Constraint("Equal", 4, 9))
sketch12.addConstraint(Sketcher.Constraint("Equal", 9, 14))
sketch12.addConstraint(Sketcher.Constraint("Equal", 14, 19))
sketch12.addConstraint(Sketcher.Constraint("Horizontal", 4, 3, 9, 3))
sketch12.addConstraint(Sketcher.Constraint("Horizontal", 14, 3, 19, 3))
sketch12.addConstraint(Sketcher.Constraint("Horizontal", 1, 2, 5, 2))
sketch12.addConstraint(Sketcher.Constraint("Horizontal", 3, 2, 7, 2))
sketch12.addConstraint(Sketcher.Constraint("Horizontal", 11, 2, 15, 2))
sketch12.addConstraint(Sketcher.Constraint("Horizontal", 13, 2, 17, 2))
sketch12.addConstraint(Sketcher.Constraint("Vertical", 9, 3, 14, 3))
sketch12.addConstraint(Sketcher.Constraint("Vertical", 4, 3, 19, 3))
sketch12.addConstraint(Sketcher.Constraint("Vertical", 8, 2, 10, 2))
sketch12.addConstraint(Sketcher.Constraint("Vertical", 7, 2, 11, 2))
sketch12.addConstraint(Sketcher.Constraint("Vertical", 3, 2, 15, 2))
sketch12.addConstraint(Sketcher.Constraint("Vertical", 2, 2, 16, 2))
sketch12.addConstraint(Sketcher.Constraint("Equal", 18, 0))
sketch12.addConstraint(Sketcher.Constraint("Equal", 13, 10))
sketch12.addConstraint(Sketcher.Constraint("Diameter", 4, Q("3.6 mm")))
sketch12.addConstraint(Sketcher.Constraint("DistanceX", 6, 2, 6, 1, Q("8 mm")))
sketch12.addConstraint(Sketcher.Constraint("DistanceX", 1, 2, 1, 1, Q("6.5 mm")))
sketch12.addConstraint(Sketcher.Constraint("DistanceY", -1, 1, 0, 2, Q("78 mm")))
sketch12.addConstraint(Sketcher.Constraint("DistanceX", -1, 1, 1, 2, Q("63 mm")))
sketch12.addConstraint(Sketcher.Constraint("DistanceX", 9, 3, 4, 3, Q("55 mm")))
sketch12.addConstraint(Sketcher.Constraint("DistanceY", 14, 3, 9, 3, Q("55 mm")))
sketch12.addConstraint(Sketcher.Constraint("DistanceX", 4, 3, 0, 2, Q("3 mm")))
sketch12.addConstraint(Sketcher.Constraint("DistanceY", 4, 3, 2, 2, Q("3 mm")))
sketch12.addConstraint(Sketcher.Constraint("DistanceX", 9, 3, 5, 2, Q("4 mm")))
sketch12.addConstraint(Sketcher.Constraint("DistanceY", 10, 2, 14, 3, Q("4 mm")))
pad4 = body.newObject("PartDesign::Pad", "Pad003")
pad4.Profile = sketch12
pad4.Length = 2
body2 = doc.addObject("PartDesign::Body", "Body001")

# Sketch on XZ plane
sketch13 = body2.newObject("Sketcher::SketchObject", "Sketch012")
sketch13.AttachmentSupport = (doc.getObject("XZ_Plane001"), [""])
sketch13.MapMode = "FlatFace"
sketch13.AttachmentOffset = App.Placement(V(0, 0, -89), App.Rotation())
sketch13.addGeometry(Part.LineSegment(V(69.5, -2, 0), V(69.5, 0, 0)), False)
sketch13.addGeometry(Part.LineSegment(V(69.5, 0, 0), V(7.5, 0, 0)), False)
sketch13.addGeometry(Part.LineSegment(V(7.5, 0, 0), V(7.5, -2, 0)), False)
sketch13.addGeometry(Part.LineSegment(V(7.5, -2, 0), V(69.5, -2, 0)), False)
sketch13.addConstraint(Sketcher.Constraint("Coincident", 0, 2, 1, 1))
sketch13.addConstraint(Sketcher.Constraint("Coincident", 1, 2, 2, 1))
sketch13.addConstraint(Sketcher.Constraint("Coincident", 2, 2, 3, 1))
sketch13.addConstraint(Sketcher.Constraint("Coincident", 3, 2, 0, 1))
sketch13.addConstraint(Sketcher.Constraint("Vertical", 0))
sketch13.addConstraint(Sketcher.Constraint("Horizontal", 1))
sketch13.addConstraint(Sketcher.Constraint("Vertical", 2))
sketch13.addConstraint(Sketcher.Constraint("Horizontal", 3))
sketch13.addConstraint(Sketcher.Constraint("PointOnObject", 0, 2, -1))
sketch13.addConstraint(Sketcher.Constraint("DistanceX", 1, 2, 1, 1, Q("62 mm")))
sketch13.addConstraint(Sketcher.Constraint("DistanceY", 0, 1, 0, 2, Q("2 mm")))
sketch13.addConstraint(Sketcher.Constraint("DistanceX", -1, 1, 0, 2, Q("69.5 mm")))
pad5 = body2.newObject("PartDesign::Pad", "Pad004")
pad5.Profile = sketch13
pad5.Length = 89
body3 = doc.addObject("PartDesign::Body", "Body002")

# Sketch on YZ plane
sketch14 = body3.newObject("Sketcher::SketchObject", "Sketch013")
sketch14.AttachmentSupport = (doc.getObject("YZ_Plane002"), [""])
sketch14.MapMode = "FlatFace"
sketch14.addGeometry(Part.LineSegment(V(42, -23, 0), V(30.5, -23, 0)), False)
sketch14.addGeometry(Part.LineSegment(V(30.5, -23, 0), V(30.5, -33, 0)), False)
sketch14.addGeometry(Part.LineSegment(V(30.5, -33, 0), V(-25, -33, 0)), False)
sketch14.addGeometry(Part.LineSegment(V(-25, -33, 0), V(-25, 33, 0)), False)
sketch14.addGeometry(Part.LineSegment(V(-25, 33, 0), V(15, 33, 0)), False)
sketch14.addGeometry(Part.LineSegment(V(15, 33, 0), V(15, 0, 0)), False)
sketch14.addGeometry(Part.LineSegment(V(15, 0, 0), V(92, 0, 0)), False)
sketch14.addGeometry(Part.LineSegment(V(92, 0, 0), V(92, -33, 0)), False)
sketch14.addGeometry(Part.LineSegment(V(92, -33, 0), V(42, -33, 0)), False)
sketch14.addGeometry(Part.LineSegment(V(42, -33, 0), V(42, -23, 0)), False)
sketch14.addConstraint(Sketcher.Constraint("Coincident", 0, 2, 1, 1))
sketch14.addConstraint(Sketcher.Constraint("Coincident", 1, 2, 2, 1))
sketch14.addConstraint(Sketcher.Constraint("Coincident", 2, 2, 3, 1))
sketch14.addConstraint(Sketcher.Constraint("Coincident", 3, 2, 4, 1))
sketch14.addConstraint(Sketcher.Constraint("Coincident", 4, 2, 5, 1))
sketch14.addConstraint(Sketcher.Constraint("Coincident", 5, 2, 6, 1))
sketch14.addConstraint(Sketcher.Constraint("Coincident", 6, 2, 7, 1))
sketch14.addConstraint(Sketcher.Constraint("Coincident", 7, 2, 8, 1))
sketch14.addConstraint(Sketcher.Constraint("Coincident", 8, 2, 9, 1))
sketch14.addConstraint(Sketcher.Constraint("Coincident", 9, 2, 0, 1))
sketch14.addConstraint(Sketcher.Constraint("Horizontal", 0))
sketch14.addConstraint(Sketcher.Constraint("Vertical", 1))
sketch14.addConstraint(Sketcher.Constraint("Horizontal", 2))
sketch14.addConstraint(Sketcher.Constraint("Vertical", 3))
sketch14.addConstraint(Sketcher.Constraint("Horizontal", 4))
sketch14.addConstraint(Sketcher.Constraint("Vertical", 5))
sketch14.addConstraint(Sketcher.Constraint("Horizontal", 6))
sketch14.addConstraint(Sketcher.Constraint("Vertical", 7))
sketch14.addConstraint(Sketcher.Constraint("Horizontal", 8))
sketch14.addConstraint(Sketcher.Constraint("Vertical", 9))
sketch14.addConstraint(Sketcher.Constraint("PointOnObject", 5, 2, -1))
sketch14.addConstraint(Sketcher.Constraint("Horizontal", 2, 2, 7, 2))
sketch14.addConstraint(Sketcher.Constraint("Equal", 5, 7))
sketch14.addConstraint(Sketcher.Constraint("DistanceX", 4, 1, 4, 2, Q("40 mm")))
sketch14.addConstraint(Sketcher.Constraint("DistanceX", 6, 1, 6, 2, Q("77 mm")))
sketch14.addConstraint(Sketcher.Constraint("DistanceX", 8, 2, 8, 1, Q("50 mm")))
sketch14.addConstraint(Sketcher.Constraint("DistanceY", 1, 2, 1, 1, Q("10 mm")))
sketch14.addConstraint(Sketcher.Constraint("DistanceY", 3, 1, 3, 2, Q("66 mm")))
sketch14.addConstraint(Sketcher.Constraint("DistanceX", 0, 2, 0, 1, Q("11.5 mm")))
sketch14.addConstraint(Sketcher.Constraint("DistanceX", 2, 2, -1, 1, Q("25 mm")))
pad6 = body3.newObject("PartDesign::Pad", "Pad005")
pad6.Profile = sketch14
pad6.Length = 23.5
doc.recompute()

body4 = doc.addObject("PartDesign::Body", "Body003")
body4.BaseFeature = body3
boolean = body.newObject("PartDesign::Boolean", "Boolean")
boolean.Type = "Cut"
boolean.addObjects([body4])
doc.recompute()

# Sketch on XZ plane
sketch15 = body.newObject("Sketcher::SketchObject", "Sketch014")
sketch15.AttachmentSupport = (doc.getObject("XZ_Plane"), [""])
sketch15.MapMode = "FlatFace"
sketch15.AttachmentOffset = App.Placement(V(0, 0, 17.5), App.Rotation())
sketch15.addGeometry(Part.LineSegment(V(23.5, -25.5, 0), V(23.5, 25.5, 0)), False)
sketch15.addGeometry(Part.LineSegment(V(23.5, 25.5, 0), V(69.5, 25.5, 0)), False)
sketch15.addGeometry(Part.LineSegment(V(69.5, 25.5, 0), V(69.5, -25.5, 0)), False)
sketch15.addGeometry(Part.LineSegment(V(69.5, -25.5, 0), V(23.5, -25.5, 0)), False)
sketch15.addConstraint(Sketcher.Constraint("Coincident", 0, 2, 1, 1))
sketch15.addConstraint(Sketcher.Constraint("Coincident", 1, 2, 2, 1))
sketch15.addConstraint(Sketcher.Constraint("Coincident", 2, 2, 3, 1))
sketch15.addConstraint(Sketcher.Constraint("Coincident", 3, 2, 0, 1))
sketch15.addConstraint(Sketcher.Constraint("Vertical", 0))
sketch15.addConstraint(Sketcher.Constraint("Horizontal", 1))
sketch15.addConstraint(Sketcher.Constraint("Vertical", 2))
sketch15.addConstraint(Sketcher.Constraint("Horizontal", 3))
sketch15.addConstraint(Sketcher.Constraint("DistanceX", 1, 1, 1, 2, Q("46 mm")))
sketch15.addConstraint(Sketcher.Constraint("DistanceY", 0, 1, 0, 2, Q("51 mm")))
sketch15.addConstraint(Sketcher.Constraint("DistanceX", -1, 1, 0, 2, Q("23.5 mm")))
sketch15.addConstraint(Sketcher.Constraint("DistanceY", -1, 1, 0, 2, Q("25.5 mm")))
pocket9 = body.newObject("PartDesign::Pocket", "Pocket008")
pocket9.Profile = sketch15
pocket9.Length = 4.5
pocket9.Reversed = True

# Sketch on XY plane
sketch16 = body.newObject("Sketcher::SketchObject", "Sketch015")
sketch16.AttachmentSupport = (doc.getObject("XY_Plane"), [""])
sketch16.MapMode = "FlatFace"
sketch16.AttachmentOffset = App.Placement(V(0, 0, 25.5), App.Rotation())
sketch16.addGeometry(Part.LineSegment(V(69.5, 0, 0), V(69.5, -17.5, 0)), False)
sketch16.addGeometry(Part.LineSegment(V(69.5, -17.5, 0), V(23.5, -17.5, 0)), False)
sketch16.addGeometry(Part.LineSegment(V(23.5, -17.5, 0), V(23.5, 0, 0)), False)
sketch16.addGeometry(Part.LineSegment(V(23.5, 0, 0), V(69.5, 0, 0)), False)
sketch16.addConstraint(Sketcher.Constraint("Coincident", 0, 2, 1, 1))
sketch16.addConstraint(Sketcher.Constraint("Coincident", 1, 2, 2, 1))
sketch16.addConstraint(Sketcher.Constraint("Coincident", 2, 2, 3, 1))
sketch16.addConstraint(Sketcher.Constraint("Coincident", 3, 2, 0, 1))
sketch16.addConstraint(Sketcher.Constraint("Vertical", 0))
sketch16.addConstraint(Sketcher.Constraint("Horizontal", 1))
sketch16.addConstraint(Sketcher.Constraint("Vertical", 2))
sketch16.addConstraint(Sketcher.Constraint("Horizontal", 3))
sketch16.addConstraint(Sketcher.Constraint("PointOnObject", 2, 2, -1))
sketch16.addConstraint(Sketcher.Constraint("DistanceX", 1, 2, 1, 1, Q("46 mm")))
sketch16.addConstraint(Sketcher.Constraint("DistanceY", 0, 2, 0, 1, Q("17.5 mm")))
sketch16.addConstraint(Sketcher.Constraint("DistanceX", -1, 1, 0, 2, Q("69.5 mm")))
pocket10 = body.newObject("PartDesign::Pocket", "Pocket009")
pocket10.Profile = sketch16
pocket10.Length = 4.5
pocket10.Reversed = True
doc.recompute()

fillet = body.newObject("PartDesign::Fillet", "Fillet")
fillet.Base = (pocket10, edges_at(pocket10, [
    (77, -5, 33),
    (77, -25, 0),
    (77, 33.5, -33),
    (77, 92, -16.5),
    (77, 53.5, 0),
    (77, 15, 16.5),
]))
fillet.Radius = 1
doc.recompute()

boolean2 = body2.newObject("PartDesign::Boolean", "Boolean001")
boolean2.Type = "Cut"
boolean2.addObjects([body3])

doc.recompute()
